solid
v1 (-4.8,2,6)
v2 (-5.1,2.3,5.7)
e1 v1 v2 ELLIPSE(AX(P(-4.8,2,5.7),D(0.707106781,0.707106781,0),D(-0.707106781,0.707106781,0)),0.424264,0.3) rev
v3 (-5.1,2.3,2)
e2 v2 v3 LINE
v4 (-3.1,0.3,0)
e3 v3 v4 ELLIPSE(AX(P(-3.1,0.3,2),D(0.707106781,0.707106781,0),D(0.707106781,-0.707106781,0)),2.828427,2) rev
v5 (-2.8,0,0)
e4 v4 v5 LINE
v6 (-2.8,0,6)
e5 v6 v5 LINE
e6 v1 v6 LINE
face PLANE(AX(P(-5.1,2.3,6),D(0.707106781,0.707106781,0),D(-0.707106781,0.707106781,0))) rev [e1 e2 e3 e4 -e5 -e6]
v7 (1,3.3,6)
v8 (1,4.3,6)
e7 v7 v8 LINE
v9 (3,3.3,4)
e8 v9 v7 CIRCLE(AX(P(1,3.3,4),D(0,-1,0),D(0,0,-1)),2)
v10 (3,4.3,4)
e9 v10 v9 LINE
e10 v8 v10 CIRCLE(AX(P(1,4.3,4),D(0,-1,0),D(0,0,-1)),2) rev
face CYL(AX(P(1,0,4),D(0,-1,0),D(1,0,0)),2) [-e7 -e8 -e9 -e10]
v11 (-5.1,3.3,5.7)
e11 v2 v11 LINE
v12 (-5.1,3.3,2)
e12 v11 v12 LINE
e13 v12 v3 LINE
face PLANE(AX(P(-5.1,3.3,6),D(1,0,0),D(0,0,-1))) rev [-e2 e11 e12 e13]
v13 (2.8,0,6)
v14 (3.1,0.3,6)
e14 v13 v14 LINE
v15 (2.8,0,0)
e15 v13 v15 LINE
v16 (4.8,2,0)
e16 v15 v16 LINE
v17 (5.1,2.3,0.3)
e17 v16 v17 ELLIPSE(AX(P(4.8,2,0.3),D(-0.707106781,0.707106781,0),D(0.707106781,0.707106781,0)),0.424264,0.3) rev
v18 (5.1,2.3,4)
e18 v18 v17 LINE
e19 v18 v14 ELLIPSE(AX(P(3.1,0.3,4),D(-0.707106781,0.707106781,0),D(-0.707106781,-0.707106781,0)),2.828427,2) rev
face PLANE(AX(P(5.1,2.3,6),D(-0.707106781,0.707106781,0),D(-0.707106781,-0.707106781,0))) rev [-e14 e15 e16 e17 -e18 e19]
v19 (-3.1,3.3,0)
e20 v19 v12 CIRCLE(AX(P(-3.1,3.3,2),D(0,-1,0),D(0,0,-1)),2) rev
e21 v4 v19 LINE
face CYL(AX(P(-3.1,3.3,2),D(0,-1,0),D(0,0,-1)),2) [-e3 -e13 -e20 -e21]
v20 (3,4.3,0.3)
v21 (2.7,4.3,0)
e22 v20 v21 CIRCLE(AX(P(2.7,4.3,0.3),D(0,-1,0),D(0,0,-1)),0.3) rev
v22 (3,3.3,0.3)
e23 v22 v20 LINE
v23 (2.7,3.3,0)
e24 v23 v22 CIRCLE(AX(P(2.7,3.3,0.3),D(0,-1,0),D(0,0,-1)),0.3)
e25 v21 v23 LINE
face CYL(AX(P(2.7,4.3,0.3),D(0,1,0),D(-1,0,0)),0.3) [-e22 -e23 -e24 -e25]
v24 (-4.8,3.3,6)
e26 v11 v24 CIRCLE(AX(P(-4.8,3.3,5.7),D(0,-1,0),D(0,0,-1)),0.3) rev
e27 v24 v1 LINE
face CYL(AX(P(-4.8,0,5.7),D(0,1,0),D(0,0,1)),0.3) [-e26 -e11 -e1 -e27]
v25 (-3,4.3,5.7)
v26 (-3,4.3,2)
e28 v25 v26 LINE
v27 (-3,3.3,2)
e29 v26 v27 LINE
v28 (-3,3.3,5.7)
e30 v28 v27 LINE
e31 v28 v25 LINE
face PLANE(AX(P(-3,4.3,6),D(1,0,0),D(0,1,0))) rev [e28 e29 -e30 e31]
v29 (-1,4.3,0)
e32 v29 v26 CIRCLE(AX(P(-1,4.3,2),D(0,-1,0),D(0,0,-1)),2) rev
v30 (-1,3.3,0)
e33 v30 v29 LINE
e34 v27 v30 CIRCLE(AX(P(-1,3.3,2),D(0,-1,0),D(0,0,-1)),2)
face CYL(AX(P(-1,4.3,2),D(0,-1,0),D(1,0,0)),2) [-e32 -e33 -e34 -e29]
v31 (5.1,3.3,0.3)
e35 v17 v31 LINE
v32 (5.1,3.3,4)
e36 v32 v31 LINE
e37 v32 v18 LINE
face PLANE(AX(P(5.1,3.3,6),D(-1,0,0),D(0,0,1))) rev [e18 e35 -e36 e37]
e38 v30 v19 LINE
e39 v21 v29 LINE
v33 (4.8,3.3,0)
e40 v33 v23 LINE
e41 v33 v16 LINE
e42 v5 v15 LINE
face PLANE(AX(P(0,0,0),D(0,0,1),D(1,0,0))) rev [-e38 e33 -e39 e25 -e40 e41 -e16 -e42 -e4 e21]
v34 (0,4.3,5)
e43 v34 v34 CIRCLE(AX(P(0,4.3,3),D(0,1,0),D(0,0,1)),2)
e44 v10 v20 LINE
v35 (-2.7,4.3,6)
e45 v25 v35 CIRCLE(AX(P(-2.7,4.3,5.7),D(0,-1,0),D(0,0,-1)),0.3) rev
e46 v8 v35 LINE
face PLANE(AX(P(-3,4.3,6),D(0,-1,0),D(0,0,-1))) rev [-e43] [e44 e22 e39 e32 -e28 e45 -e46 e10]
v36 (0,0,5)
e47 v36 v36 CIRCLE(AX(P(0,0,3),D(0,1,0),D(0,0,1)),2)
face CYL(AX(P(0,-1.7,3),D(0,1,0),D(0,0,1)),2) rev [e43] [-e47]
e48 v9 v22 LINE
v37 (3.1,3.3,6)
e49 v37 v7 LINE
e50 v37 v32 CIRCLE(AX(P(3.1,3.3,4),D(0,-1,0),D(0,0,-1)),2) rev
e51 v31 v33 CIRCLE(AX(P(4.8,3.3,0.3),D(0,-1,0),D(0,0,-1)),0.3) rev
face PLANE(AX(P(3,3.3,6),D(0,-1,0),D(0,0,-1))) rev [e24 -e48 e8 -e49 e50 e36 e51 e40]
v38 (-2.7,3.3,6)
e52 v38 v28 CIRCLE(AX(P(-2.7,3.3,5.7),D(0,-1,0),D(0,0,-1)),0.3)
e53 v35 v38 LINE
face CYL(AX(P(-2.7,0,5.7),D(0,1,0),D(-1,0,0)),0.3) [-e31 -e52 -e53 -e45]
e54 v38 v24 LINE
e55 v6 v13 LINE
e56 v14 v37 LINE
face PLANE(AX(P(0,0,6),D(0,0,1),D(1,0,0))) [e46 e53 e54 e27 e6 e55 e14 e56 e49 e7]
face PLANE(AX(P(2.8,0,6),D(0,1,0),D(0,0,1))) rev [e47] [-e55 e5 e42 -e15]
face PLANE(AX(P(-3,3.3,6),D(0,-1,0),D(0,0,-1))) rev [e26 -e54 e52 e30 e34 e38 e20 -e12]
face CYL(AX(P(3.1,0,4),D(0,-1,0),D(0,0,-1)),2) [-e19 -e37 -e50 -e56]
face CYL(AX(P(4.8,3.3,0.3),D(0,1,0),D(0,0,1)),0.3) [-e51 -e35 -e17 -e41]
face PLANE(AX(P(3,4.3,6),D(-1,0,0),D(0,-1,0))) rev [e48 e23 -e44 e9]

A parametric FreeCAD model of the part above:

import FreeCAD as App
import Part
import Sketcher


def edges_at(feature, points):
    """Names of the edges that pass closest to the given points."""
    edges = feature.Shape.Edges
    near = lambda p: min(range(len(edges)), key=lambda i: edges[i].distToShape(Part.Vertex(*p))[0])
    return sorted({f"Edge{near(p) + 1}" for p in points})


def add_polygon(sketch, points):
    """Adds a closed chain of lines whose ends are joined by coincident constraints."""
    first, n = sketch.GeometryCount, len(points)
    for a, b in zip(points, points[1:] + points[:1]):
        sketch.addGeometry(Part.LineSegment(App.Vector(*a, 0), App.Vector(*b, 0)), False)
    for i in range(n):
        sketch.addConstraint(Sketcher.Constraint("Coincident", first + i, 2, first + (i + 1) % n, 1))

doc = App.newDocument("Part")
params = doc.addObject("Spreadsheet::Sheet", "Params")
for row, (alias, value) in enumerate([
    ("sketch1_width", "6 mm"),
    ("sketch1_height", "1 mm"),
    ("sketch1_width2", "2.1 mm"),
    ("sketch1_width3", "5.6 mm"),
    ("pad1_length", "6 mm"),
    ("fillet_radius", "2 mm"),
    ("fillet2_radius", "2 mm"),
    ("fillet3_radius", "0.3 mm"),
    ("sketch2_diameter", "4 mm"),
    ("pocket1_length", "6 mm"),
], start=1):
    params.set(f"A{row}", alias)
    params.set(f"B{row}", "=" + value)
    params.setAlias(f"B{row}", alias)

body = doc.addObject("PartDesign::Body", "Body")

# Sketch on XY plane
sketch1 = doc.addObject("Sketcher::SketchObject", "Sketch")
body.addObject(sketch1)
sketch1.AttachmentSupport = (doc.XY_Plane, [""])
sketch1.MapMode = "FlatFace"
add_polygon(sketch1, [(3, 4.3), (-3, 4.3), (-3, 3.3), (-5.1, 3.3), (-5.1, 2.3), (-2.8, 0), (2.8, 0), (5.1, 2.3), (5.1, 3.3), (3, 3.3)])  # lines 0-9
sketch1.addConstraint([
    Sketcher.Constraint("Horizontal", 0),
    Sketcher.Constraint("Vertical", 1),
    Sketcher.Constraint("Horizontal", 2),
    Sketcher.Constraint("Vertical", 3),
    Sketcher.Constraint("Horizontal", 5),
    Sketcher.Constraint("Vertical", 7),
    Sketcher.Constraint("Horizontal", 8),
    Sketcher.Constraint("Vertical", 9),
    Sketcher.Constraint("Symmetric", 4, 2, 5, 2, -1, 1),
    Sketcher.Constraint("Symmetric", 3, 2, 6, 2, -2),
    Sketcher.Constraint("Symmetric", 1, 2, 8, 2, -2),
    Sketcher.Constraint("Perpendicular", 4, 6),
    Sketcher.Constraint("Equal", 1, 3),
    Sketcher.Constraint("DistanceX", 0, 2, 0, 1, 6.0),
    Sketcher.Constraint("DistanceY", 1, 2, 1, 1, 1.0),
    Sketcher.Constraint("DistanceX", 2, 2, 2, 1, 2.1),
    Sketcher.Constraint("DistanceX", 5, 1, 5, 2, 5.6),
])
sketch1.setExpression("Constraints[23]", "Params.sketch1_width")
sketch1.setExpression("Constraints[24]", "Params.sketch1_height")
sketch1.setExpression("Constraints[25]", "Params.sketch1_width2")
sketch1.setExpression("Constraints[26]", "Params.sketch1_width3")
pad1 = doc.addObject("PartDesign::Pad", "Pad")
body.addObject(pad1)
pad1.Profile = sketch1
pad1.setExpression("Length", "Params.pad1_length")
doc.recompute()

fillet = doc.addObject("PartDesign::Fillet", "Fillet")
body.addObject(fillet)
fillet.Base = (pad1, edges_at(pad1, [(-3, 3.8, 0), (3, 3.8, 6)]))
fillet.setExpression("Radius", "Params.fillet_radius")
doc.recompute()

fillet2 = doc.addObject("PartDesign::Fillet", "Fillet001")
body.addObject(fillet2)
fillet2.Base = (fillet, edges_at(fillet, [(-5.1, 2.8, 0), (5.1, 2.8, 6)]))
fillet2.setExpression("Radius", "Params.fillet2_radius")
doc.recompute()

fillet3 = doc.addObject("PartDesign::Fillet", "Fillet002")
body.addObject(fillet3)
fillet3.Base = (fillet2, edges_at(fillet2, [
    (-3, 3.8, 6),
    (3, 3.8, 0),
    (-5.1, 2.8, 6),
    (5.1, 2.8, 0),
]))
fillet3.setExpression("Radius", "Params.fillet3_radius")

# Sketch on XZ plane
sketch2 = doc.addObject("Sketcher::SketchObject", "Sketch001")
body.addObject(sketch2)
sketch2.AttachmentSupport = (doc.XZ_Plane, [""])
sketch2.MapMode = "FlatFace"
sketch2.AttachmentOffset = App.Placement(App.Vector(0, 0, -4.3), App.Rotation())
sketch2.addGeometry(Part.Circle(App.Vector(0, 3, 0), App.Vector(0, 0, 1), 2), False)
sketch2.addConstraint([
    Sketcher.Constraint("PointOnObject", 0, 3, -2),
    Sketcher.Constraint("Diameter", 0, 4.0),
    Sketcher.Constraint("DistanceY", -1, 1, 0, 3, 3.0),
])
sketch2.setExpression("Constraints[1]", "Params.sketch2_diameter")
pocket1 = doc.addObject("PartDesign::Pocket", "Pocket")
body.addObject(pocket1)
pocket1.Profile = sketch2
pocket1.setExpression("Length", "Params.pocket1_length")
pocket1.Reversed = True

doc.recompute()
